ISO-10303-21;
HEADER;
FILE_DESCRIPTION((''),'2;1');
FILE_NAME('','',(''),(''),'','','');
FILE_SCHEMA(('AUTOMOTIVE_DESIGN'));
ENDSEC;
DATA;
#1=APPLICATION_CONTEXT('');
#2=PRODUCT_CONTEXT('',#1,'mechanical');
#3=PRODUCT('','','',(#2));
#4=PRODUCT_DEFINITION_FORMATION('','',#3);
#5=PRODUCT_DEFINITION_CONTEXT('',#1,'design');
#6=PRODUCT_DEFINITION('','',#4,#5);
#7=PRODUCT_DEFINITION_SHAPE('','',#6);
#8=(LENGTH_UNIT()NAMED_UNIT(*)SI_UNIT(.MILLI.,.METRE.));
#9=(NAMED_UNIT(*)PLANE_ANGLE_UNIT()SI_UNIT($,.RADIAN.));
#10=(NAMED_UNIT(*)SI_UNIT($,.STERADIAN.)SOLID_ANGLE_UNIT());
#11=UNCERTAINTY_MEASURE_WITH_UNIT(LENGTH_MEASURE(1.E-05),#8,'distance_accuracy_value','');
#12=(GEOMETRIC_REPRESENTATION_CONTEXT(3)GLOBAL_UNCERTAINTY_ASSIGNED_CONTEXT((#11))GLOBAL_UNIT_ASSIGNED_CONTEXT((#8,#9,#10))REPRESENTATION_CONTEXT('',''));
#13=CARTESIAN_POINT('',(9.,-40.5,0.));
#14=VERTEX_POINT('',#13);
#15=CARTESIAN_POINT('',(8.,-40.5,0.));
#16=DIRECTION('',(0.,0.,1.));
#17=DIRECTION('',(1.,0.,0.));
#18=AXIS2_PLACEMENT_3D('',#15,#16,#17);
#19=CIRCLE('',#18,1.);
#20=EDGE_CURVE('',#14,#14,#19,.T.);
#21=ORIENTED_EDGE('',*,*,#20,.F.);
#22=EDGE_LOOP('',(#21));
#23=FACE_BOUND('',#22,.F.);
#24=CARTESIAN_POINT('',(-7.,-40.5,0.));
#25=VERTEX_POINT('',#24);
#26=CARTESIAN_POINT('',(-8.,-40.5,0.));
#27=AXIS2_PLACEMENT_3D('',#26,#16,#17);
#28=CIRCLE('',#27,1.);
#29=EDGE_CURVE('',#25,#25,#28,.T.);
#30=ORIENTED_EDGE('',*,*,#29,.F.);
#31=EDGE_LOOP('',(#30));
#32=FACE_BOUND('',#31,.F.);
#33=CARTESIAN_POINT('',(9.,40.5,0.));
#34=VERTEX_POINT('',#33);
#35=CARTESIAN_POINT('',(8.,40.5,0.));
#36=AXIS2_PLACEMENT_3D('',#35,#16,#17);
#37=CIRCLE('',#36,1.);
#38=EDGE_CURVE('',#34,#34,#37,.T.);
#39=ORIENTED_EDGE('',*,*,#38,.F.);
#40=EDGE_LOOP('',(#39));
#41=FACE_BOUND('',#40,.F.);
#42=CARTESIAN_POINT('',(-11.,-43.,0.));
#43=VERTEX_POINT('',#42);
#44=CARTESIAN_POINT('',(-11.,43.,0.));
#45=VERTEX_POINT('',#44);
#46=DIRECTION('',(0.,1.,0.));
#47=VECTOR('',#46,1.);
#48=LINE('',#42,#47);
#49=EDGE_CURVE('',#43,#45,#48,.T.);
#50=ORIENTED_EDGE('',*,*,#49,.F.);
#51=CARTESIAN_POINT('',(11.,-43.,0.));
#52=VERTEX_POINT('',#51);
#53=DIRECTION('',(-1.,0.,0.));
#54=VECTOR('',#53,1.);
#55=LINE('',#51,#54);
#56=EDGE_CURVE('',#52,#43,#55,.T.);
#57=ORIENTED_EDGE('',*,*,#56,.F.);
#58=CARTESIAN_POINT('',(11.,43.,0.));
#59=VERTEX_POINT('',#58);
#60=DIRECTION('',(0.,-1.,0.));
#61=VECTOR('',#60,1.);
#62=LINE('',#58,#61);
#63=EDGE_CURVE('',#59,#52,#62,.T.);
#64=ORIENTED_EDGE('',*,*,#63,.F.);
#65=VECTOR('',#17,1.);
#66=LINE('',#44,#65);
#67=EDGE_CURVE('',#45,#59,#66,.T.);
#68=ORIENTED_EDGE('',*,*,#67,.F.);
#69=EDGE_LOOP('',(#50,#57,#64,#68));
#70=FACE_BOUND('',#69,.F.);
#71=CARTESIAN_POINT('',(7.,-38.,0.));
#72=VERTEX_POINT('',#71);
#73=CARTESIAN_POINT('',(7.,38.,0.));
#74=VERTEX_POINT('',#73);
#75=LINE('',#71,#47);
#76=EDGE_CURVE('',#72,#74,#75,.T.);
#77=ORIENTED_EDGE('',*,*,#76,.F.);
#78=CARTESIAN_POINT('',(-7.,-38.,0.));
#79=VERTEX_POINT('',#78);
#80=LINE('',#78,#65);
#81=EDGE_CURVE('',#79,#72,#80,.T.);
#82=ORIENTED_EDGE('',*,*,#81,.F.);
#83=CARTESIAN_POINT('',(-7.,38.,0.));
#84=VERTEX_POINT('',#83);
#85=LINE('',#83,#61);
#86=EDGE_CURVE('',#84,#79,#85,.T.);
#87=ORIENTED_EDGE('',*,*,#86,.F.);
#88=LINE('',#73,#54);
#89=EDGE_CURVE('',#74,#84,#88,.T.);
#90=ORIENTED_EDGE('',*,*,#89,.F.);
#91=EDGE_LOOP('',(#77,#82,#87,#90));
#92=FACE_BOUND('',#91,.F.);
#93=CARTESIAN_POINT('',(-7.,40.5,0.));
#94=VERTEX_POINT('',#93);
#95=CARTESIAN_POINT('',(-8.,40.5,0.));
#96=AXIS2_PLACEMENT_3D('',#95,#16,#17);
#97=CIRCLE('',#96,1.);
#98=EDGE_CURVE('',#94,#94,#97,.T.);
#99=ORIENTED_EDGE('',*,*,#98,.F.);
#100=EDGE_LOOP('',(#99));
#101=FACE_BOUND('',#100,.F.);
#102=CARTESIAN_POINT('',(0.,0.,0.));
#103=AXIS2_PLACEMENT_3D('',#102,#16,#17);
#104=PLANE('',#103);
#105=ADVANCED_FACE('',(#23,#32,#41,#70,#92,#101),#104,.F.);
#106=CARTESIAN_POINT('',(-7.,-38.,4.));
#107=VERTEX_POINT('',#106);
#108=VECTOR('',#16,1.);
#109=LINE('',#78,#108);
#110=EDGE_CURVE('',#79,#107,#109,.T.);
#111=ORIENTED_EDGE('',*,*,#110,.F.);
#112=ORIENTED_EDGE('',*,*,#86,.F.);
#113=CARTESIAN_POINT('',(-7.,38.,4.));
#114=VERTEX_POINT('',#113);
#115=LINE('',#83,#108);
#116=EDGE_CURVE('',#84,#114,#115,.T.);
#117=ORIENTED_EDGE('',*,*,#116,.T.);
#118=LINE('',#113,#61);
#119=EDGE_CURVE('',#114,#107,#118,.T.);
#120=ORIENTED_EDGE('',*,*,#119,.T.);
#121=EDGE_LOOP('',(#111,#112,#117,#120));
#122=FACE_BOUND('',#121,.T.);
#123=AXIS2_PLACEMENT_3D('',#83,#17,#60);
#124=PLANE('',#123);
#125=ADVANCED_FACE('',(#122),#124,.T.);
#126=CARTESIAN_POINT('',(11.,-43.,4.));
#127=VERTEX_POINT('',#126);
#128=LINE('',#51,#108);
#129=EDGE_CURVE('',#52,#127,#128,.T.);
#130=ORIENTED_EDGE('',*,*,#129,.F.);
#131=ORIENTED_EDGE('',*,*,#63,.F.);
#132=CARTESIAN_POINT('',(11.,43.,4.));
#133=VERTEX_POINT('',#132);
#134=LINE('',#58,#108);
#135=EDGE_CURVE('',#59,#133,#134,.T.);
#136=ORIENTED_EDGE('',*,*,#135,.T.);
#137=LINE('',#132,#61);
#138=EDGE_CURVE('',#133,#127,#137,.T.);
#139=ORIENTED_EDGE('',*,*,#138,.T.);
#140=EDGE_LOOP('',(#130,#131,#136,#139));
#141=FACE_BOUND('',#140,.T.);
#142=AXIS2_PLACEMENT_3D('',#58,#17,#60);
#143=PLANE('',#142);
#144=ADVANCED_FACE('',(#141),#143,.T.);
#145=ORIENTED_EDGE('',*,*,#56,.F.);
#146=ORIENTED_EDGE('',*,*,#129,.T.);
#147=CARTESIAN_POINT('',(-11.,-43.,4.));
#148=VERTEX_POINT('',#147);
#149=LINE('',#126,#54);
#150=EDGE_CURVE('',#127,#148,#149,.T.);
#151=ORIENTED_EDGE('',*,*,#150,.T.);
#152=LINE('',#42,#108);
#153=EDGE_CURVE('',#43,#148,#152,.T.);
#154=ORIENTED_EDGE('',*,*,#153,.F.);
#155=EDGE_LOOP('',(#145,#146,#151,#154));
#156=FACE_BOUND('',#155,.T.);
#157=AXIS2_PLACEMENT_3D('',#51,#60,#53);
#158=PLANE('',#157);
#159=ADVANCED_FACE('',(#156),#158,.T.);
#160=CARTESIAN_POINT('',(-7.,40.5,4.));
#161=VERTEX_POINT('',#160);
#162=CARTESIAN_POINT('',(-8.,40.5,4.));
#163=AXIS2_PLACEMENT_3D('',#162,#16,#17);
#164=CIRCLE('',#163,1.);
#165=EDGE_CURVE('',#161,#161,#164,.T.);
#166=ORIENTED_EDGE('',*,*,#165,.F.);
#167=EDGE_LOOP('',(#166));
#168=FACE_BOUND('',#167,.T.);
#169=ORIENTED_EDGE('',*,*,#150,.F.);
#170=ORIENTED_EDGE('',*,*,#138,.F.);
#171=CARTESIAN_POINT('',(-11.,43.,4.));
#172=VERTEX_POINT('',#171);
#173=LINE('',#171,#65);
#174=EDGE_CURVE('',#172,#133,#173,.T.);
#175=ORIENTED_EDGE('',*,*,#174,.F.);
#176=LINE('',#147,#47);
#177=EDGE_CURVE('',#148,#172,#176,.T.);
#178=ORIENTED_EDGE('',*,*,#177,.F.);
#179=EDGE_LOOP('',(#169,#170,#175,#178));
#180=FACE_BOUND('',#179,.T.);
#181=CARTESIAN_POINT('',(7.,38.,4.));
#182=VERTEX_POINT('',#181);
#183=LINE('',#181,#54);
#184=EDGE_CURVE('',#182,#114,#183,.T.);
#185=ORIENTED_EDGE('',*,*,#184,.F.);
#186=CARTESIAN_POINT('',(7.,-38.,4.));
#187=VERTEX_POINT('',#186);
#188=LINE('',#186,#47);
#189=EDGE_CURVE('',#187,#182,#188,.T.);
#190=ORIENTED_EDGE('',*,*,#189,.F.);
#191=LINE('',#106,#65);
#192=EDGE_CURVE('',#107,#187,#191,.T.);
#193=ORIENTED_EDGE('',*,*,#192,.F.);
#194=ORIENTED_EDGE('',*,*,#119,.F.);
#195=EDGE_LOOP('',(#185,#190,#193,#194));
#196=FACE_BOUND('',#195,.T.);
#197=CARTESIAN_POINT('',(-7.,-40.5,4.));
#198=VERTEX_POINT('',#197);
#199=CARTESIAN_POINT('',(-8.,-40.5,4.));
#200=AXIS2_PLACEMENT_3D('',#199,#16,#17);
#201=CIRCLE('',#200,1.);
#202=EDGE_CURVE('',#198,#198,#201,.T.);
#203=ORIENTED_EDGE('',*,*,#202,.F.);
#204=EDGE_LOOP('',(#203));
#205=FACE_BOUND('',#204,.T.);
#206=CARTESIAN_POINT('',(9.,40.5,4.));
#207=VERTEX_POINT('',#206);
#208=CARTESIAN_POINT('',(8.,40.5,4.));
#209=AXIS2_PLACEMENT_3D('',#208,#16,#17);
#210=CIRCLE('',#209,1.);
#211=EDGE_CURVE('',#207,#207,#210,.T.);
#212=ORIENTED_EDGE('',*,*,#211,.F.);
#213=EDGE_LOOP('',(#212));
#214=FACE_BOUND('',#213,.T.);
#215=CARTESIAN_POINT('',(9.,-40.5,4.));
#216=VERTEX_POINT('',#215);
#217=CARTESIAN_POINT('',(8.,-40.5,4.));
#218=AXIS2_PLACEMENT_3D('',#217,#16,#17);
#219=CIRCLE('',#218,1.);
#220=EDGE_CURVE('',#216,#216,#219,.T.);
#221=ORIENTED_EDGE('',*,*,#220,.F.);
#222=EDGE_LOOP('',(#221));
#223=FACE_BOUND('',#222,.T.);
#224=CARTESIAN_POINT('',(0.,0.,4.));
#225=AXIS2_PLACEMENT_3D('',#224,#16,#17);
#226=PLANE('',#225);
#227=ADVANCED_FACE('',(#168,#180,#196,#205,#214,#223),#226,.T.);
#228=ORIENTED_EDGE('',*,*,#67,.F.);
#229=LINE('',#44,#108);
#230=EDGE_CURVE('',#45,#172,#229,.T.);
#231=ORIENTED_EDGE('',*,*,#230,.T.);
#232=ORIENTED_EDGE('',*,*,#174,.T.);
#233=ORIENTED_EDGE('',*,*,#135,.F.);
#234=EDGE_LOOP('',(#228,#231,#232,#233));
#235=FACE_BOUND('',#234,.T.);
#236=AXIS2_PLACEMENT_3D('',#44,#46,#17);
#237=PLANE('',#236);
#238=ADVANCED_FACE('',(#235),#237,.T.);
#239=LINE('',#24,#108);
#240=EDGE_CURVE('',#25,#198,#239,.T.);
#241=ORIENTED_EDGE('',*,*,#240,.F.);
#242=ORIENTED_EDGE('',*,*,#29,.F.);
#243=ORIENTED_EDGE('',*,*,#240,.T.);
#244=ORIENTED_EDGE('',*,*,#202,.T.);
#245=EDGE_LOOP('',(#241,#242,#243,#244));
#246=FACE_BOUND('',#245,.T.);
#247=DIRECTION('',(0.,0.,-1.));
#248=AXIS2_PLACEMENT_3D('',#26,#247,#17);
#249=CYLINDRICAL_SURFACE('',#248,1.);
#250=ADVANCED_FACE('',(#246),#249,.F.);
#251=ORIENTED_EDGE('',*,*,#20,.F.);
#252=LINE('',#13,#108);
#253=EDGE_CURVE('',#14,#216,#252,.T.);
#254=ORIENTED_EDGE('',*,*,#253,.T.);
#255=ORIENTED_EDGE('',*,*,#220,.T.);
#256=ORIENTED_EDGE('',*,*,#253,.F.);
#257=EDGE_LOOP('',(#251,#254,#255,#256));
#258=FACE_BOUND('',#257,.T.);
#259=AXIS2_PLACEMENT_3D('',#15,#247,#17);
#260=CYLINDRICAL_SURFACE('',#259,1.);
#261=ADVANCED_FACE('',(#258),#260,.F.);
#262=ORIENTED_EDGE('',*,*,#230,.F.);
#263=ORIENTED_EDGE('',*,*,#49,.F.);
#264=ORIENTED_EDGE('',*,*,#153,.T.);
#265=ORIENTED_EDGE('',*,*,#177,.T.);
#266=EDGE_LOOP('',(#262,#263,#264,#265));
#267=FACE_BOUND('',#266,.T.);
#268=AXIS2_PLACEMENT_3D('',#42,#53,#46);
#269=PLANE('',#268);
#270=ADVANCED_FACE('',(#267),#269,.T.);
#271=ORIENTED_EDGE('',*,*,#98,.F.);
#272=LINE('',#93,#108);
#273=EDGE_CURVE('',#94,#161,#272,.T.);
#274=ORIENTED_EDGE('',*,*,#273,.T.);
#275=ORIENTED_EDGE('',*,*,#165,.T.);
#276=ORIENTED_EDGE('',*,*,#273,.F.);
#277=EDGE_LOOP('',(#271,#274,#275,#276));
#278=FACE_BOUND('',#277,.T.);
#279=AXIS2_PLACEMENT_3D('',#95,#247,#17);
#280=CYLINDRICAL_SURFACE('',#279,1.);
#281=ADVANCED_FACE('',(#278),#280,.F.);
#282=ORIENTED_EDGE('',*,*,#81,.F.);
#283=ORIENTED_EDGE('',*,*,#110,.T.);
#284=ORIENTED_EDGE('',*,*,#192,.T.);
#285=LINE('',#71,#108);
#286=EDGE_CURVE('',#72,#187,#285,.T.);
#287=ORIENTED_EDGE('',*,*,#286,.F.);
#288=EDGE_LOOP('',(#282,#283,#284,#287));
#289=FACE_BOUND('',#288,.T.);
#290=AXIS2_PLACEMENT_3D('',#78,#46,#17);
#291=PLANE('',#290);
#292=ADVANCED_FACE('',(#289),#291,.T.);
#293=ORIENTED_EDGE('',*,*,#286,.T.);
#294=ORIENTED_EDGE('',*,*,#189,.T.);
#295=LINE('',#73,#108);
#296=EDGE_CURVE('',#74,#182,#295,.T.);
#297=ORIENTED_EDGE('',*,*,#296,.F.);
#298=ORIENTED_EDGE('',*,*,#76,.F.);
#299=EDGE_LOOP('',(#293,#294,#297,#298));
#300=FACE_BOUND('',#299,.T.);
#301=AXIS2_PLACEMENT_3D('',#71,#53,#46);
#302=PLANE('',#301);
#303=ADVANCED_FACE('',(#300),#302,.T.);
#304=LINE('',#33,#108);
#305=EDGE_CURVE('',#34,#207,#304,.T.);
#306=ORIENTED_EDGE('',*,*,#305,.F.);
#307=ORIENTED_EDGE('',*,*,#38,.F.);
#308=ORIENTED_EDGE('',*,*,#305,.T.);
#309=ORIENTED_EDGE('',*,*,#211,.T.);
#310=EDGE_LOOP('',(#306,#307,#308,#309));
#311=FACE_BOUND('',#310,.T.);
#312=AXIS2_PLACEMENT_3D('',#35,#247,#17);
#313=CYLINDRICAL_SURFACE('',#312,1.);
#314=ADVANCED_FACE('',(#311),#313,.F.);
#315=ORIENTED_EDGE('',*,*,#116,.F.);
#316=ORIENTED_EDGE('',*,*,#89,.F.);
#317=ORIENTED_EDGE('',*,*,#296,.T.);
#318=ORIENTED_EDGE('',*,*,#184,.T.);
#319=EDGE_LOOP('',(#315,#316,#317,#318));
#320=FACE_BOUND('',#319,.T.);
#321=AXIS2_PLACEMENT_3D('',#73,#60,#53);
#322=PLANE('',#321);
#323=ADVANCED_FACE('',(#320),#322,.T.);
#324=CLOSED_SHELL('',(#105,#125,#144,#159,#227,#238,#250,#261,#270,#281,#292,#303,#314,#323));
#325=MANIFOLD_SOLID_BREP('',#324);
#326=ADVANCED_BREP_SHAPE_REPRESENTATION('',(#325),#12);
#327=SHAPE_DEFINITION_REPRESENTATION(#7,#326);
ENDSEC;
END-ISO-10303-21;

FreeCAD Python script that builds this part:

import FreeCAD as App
import Part
import Sketcher

V = App.Vector
Q = App.Units.Quantity

doc = App.newDocument("Part")
params = doc.addObject("Spreadsheet::Sheet", "Params")
for row, (alias, value) in enumerate([
    ("sketch1_diameter", "2 mm"),
    ("sketch1_width", "22 mm"),
    ("sketch1_width2", "14 mm"),
    ("sketch1_height", "86 mm"),
    ("sketch1_height2", "76 mm"),
    ("pad1_length", "4 mm"),
], start=1):
    params.set(f"A{row}", alias)
    params.set(f"B{row}", "=" + value)
    params.setAlias(f"B{row}", alias)

body = doc.addObject("PartDesign::Body", "Body")

sketch1 = doc.addObject("Sketcher::SketchObject", "Sketch")
body.addObject(sketch1)
sketch1.AttachmentSupport = (doc.XY_Plane, [""])
sketch1.MapMode = "FlatFace"
sketch1.addGeometry([
    Part.LineSegment(V(11, 43, 0), V(-11, 43, 0)),
    Part.LineSegment(V(-11, 43, 0), V(-11, -43, 0)),
    Part.LineSegment(V(-11, -43, 0), V(11, -43, 0)),
    Part.LineSegment(V(11, -43, 0), V(11, 43, 0)),
    Part.Circle(V(-8, -40.5, 0), V(0, 0, 1), 1),
    Part.Circle(V(8, -40.5, 0), V(0, 0, 1), 1),
    Part.Circle(V(-8, 40.5, 0), V(0, 0, 1), 1),
    Part.LineSegment(V(-7, 38, 0), V(7, 38, 0)),
    Part.LineSegment(V(7, 38, 0), V(7, -38, 0)),
    Part.LineSegment(V(7, -38, 0), V(-7, -38, 0)),
    Part.LineSegment(V(-7, -38, 0), V(-7, 38, 0)),
    Part.Circle(V(8, 40.5, 0), V(0, 0, 1), 1),
], False)
sketch1.addConstraint([
    Sketcher.Constraint("Coincident", 0, 2, 1, 1),
    Sketcher.Constraint("Coincident", 1, 2, 2, 1),
    Sketcher.Constraint("Coincident", 2, 2, 3, 1),
    Sketcher.Constraint("Coincident", 3, 2, 0, 1),
    Sketcher.Constraint("Coincident", 7, 2, 8, 1),
    Sketcher.Constraint("Coincident", 8, 2, 9, 1),
    Sketcher.Constraint("Coincident", 9, 2, 10, 1),
    Sketcher.Constraint("Coincident", 10, 2, 7, 1),
    Sketcher.Constraint("Horizontal", 0),
    Sketcher.Constraint("Vertical", 1),
    Sketcher.Constraint("Horizontal", 2),
    Sketcher.Constraint("Vertical", 3),
    Sketcher.Constraint("Horizontal", 7),
    Sketcher.Constraint("Vertical", 8),
    Sketcher.Constraint("Horizontal", 9),
    Sketcher.Constraint("Vertical", 10),
    Sketcher.Constraint("Equal", 4, 5),
    Sketcher.Constraint("Equal", 5, 6),
    Sketcher.Constraint("Equal", 6, 11),
    Sketcher.Constraint("Symmetric", 5, 3, 6, 3, -1, 1),
    Sketcher.Constraint("Symmetric", 4, 3, 11, 3, -1, 1),
    Sketcher.Constraint("Symmetric", 0, 2, 2, 2, -1, 1),
    Sketcher.Constraint("Symmetric", 7, 2, 9, 2, -1, 1),
    Sketcher.Constraint("Symmetric", 4, 3, 5, 3, -2),
    Sketcher.Constraint("Diameter", 4, Q("2 mm")),
    Sketcher.Constraint("DistanceX", 0, 2, 0, 1, Q("22 mm")),
    Sketcher.Constraint("DistanceX", 7, 1, 7, 2, Q("14 mm")),
    Sketcher.Constraint("DistanceY", 1, 2, 1, 1, Q("86 mm")),
    Sketcher.Constraint("DistanceY", 8, 2, 8, 1, Q("76 mm")),
    Sketcher.Constraint("DistanceX", 0, 2, 6, 3, Q("3 mm")),
    Sketcher.Constraint("DistanceY", 6, 3, 0, 2, Q("2.5 mm")),
])
sketch1.setExpression("Constraints[24]", "Params.sketch1_diameter")
sketch1.setExpression("Constraints[25]", "Params.sketch1_width")
sketch1.setExpression("Constraints[26]", "Params.sketch1_width2")
sketch1.setExpression("Constraints[27]", "Params.sketch1_height")
sketch1.setExpression("Constraints[28]", "Params.sketch1_height2")
pad1 = doc.addObject("PartDesign::Pad", "Pad")
body.addObject(pad1)
pad1.Profile = sketch1
pad1.setExpression("Length", "Params.pad1_length")

doc.recompute()
